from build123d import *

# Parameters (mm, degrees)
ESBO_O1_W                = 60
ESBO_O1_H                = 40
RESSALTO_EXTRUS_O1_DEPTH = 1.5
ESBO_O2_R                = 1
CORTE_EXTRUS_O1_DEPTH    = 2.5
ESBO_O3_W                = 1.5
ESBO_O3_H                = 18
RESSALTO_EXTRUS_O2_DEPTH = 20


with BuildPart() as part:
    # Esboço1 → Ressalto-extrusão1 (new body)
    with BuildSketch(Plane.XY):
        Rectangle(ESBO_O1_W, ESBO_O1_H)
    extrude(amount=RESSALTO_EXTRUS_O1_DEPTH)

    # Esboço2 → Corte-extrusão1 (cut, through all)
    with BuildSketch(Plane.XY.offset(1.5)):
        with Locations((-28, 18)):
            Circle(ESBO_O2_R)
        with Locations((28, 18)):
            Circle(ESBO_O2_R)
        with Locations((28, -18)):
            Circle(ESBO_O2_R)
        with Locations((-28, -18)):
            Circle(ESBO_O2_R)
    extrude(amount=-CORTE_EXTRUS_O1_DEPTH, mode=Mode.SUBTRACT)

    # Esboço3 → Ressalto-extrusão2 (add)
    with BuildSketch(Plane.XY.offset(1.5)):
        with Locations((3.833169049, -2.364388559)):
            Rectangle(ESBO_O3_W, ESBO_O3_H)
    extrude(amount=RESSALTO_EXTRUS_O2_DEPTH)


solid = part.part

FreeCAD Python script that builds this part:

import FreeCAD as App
import Part
import Sketcher
from FreeCAD import Vector
Q = App.Units.Quantity

doc = App.newDocument("Part")
body = doc.addObject("PartDesign::Body", "Body")

# Sketch on XY plane
sketch1 = doc.addObject("Sketcher::SketchObject", "Sketch")
body.addObject(sketch1)
sketch1.AttachmentSupport = (doc.XY_Plane, [""])
sketch1.MapMode = "FlatFace"
sketch1.addGeometry([
    Part.LineSegment(Vector(-30, 20, 0), Vector(-30, -20, 0)),
    Part.LineSegment(Vector(-30, -20, 0), Vector(30, -20, 0)),
    Part.LineSegment(Vector(30, -20, 0), Vector(30, 20, 0)),
    Part.LineSegment(Vector(30, 20, 0), Vector(-30, 20, 0)),
], False)
sketch1.addConstraint([
    Sketcher.Constraint("Coincident", 0, 2, 1, 1),
    Sketcher.Constraint("Coincident", 1, 2, 2, 1),
    Sketcher.Constraint("Coincident", 2, 2, 3, 1),
    Sketcher.Constraint("Coincident", 3, 2, 0, 1),
    Sketcher.Constraint("Vertical", 0),
    Sketcher.Constraint("Horizontal", 1),
    Sketcher.Constraint("Vertical", 2),
    Sketcher.Constraint("Horizontal", 3),
    Sketcher.Constraint("Symmetric", 0, 2, 2, 2, -1, 1),
    Sketcher.Constraint("DistanceX", 1, 1, 1, 2, Q("60 mm")),
    Sketcher.Constraint("DistanceY", 0, 2, 0, 1, Q("40 mm")),
])
pad1 = doc.addObject("PartDesign::Pad", "Pad")
body.addObject(pad1)
pad1.Profile = sketch1
pad1.Length = 1.5

# Sketch on XY plane
sketch2 = doc.addObject("Sketcher::SketchObject", "Sketch001")
body.addObject(sketch2)
sketch2.AttachmentSupport = (doc.XY_Plane, [""])
sketch2.MapMode = "FlatFace"
sketch2.AttachmentOffset = App.Placement(Vector(0, 0, 1.5), App.Rotation())
sketch2.addGeometry([
    Part.Circle(Vector(-28, 18, 0), Vector(0, 0, 1), 1),
    Part.Circle(Vector(28, 18, 0), Vector(0, 0, 1), 1),
    Part.Circle(Vector(28, -18, 0), Vector(0, 0, 1), 1),
    Part.Circle(Vector(-28, -18, 0), Vector(0, 0, 1), 1),
], False)
sketch2.addConstraint([
    Sketcher.Constraint("Equal", 0, 1),
    Sketcher.Constraint("Equal", 1, 2),
    Sketcher.Constraint("Equal", 2, 3),
    Sketcher.Constraint("Symmetric", 0, 3, 2, 3, -1, 1),
    Sketcher.Constraint("Symmetric", 1, 3, 3, 3, -1, 1),
    Sketcher.Constraint("Symmetric", 0, 3, 1, 3, -2),
    Sketcher.Constraint("Diameter", 0, Q("2 mm")),
    Sketcher.Constraint("DistanceX", 0, 3, -1, 1, Q("28 mm")),
    Sketcher.Constraint("DistanceY", -1, 1, 0, 3, Q("18 mm")),
])
pocket1 = doc.addObject("PartDesign::Pocket", "Pocket")
body.addObject(pocket1)
pocket1.Profile = sketch2
pocket1.Type = "ThroughAll"

# Sketch on XY plane
sketch3 = doc.addObject("Sketcher::SketchObject", "Sketch002")
body.addObject(sketch3)
sketch3.AttachmentSupport = (doc.XY_Plane, [""])
sketch3.MapMode = "FlatFace"
sketch3.AttachmentOffset = App.Placement(Vector(0, 0, 1.5), App.Rotation())
sketch3.addGeometry([
    Part.LineSegment(Vector(3.1, 6.6, 0), Vector(3.1, -11.4, 0)),
    Part.LineSegment(Vector(3.1, -11.4, 0), Vector(4.6, -11.4, 0)),
    Part.LineSegment(Vector(4.6, -11.4, 0), Vector(4.6, 6.6, 0)),
    Part.LineSegment(Vector(4.6, 6.6, 0), Vector(3.1, 6.6, 0)),
], False)
sketch3.addConstraint([
    Sketcher.Constraint("Coincident", 0, 2, 1, 1),
    Sketcher.Constraint("Coincident", 1, 2, 2, 1),
    Sketcher.Constraint("Coincident", 2, 2, 3, 1),
    Sketcher.Constraint("Coincident", 3, 2, 0, 1),
    Sketcher.Constraint("Vertical", 0),
    Sketcher.Constraint("Horizontal", 1),
    Sketcher.Constraint("Vertical", 2),
    Sketcher.Constraint("Horizontal", 3),
    Sketcher.Constraint("DistanceY", 0, 2, 0, 1, Q("18 mm")),
    Sketcher.Constraint("DistanceX", 1, 1, 1, 2, Q("1.5 mm")),
    Sketcher.Constraint("DistanceX", -1, 1, 0, 2, Q("3.083169 mm")),
    Sketcher.Constraint("DistanceY", 0, 2, -1, 1, Q("11.364389 mm")),
])
pad2 = doc.addObject("PartDesign::Pad", "Pad001")
body.addObject(pad2)
pad2.Profile = sketch3
pad2.Length = 20

doc.recompute()
